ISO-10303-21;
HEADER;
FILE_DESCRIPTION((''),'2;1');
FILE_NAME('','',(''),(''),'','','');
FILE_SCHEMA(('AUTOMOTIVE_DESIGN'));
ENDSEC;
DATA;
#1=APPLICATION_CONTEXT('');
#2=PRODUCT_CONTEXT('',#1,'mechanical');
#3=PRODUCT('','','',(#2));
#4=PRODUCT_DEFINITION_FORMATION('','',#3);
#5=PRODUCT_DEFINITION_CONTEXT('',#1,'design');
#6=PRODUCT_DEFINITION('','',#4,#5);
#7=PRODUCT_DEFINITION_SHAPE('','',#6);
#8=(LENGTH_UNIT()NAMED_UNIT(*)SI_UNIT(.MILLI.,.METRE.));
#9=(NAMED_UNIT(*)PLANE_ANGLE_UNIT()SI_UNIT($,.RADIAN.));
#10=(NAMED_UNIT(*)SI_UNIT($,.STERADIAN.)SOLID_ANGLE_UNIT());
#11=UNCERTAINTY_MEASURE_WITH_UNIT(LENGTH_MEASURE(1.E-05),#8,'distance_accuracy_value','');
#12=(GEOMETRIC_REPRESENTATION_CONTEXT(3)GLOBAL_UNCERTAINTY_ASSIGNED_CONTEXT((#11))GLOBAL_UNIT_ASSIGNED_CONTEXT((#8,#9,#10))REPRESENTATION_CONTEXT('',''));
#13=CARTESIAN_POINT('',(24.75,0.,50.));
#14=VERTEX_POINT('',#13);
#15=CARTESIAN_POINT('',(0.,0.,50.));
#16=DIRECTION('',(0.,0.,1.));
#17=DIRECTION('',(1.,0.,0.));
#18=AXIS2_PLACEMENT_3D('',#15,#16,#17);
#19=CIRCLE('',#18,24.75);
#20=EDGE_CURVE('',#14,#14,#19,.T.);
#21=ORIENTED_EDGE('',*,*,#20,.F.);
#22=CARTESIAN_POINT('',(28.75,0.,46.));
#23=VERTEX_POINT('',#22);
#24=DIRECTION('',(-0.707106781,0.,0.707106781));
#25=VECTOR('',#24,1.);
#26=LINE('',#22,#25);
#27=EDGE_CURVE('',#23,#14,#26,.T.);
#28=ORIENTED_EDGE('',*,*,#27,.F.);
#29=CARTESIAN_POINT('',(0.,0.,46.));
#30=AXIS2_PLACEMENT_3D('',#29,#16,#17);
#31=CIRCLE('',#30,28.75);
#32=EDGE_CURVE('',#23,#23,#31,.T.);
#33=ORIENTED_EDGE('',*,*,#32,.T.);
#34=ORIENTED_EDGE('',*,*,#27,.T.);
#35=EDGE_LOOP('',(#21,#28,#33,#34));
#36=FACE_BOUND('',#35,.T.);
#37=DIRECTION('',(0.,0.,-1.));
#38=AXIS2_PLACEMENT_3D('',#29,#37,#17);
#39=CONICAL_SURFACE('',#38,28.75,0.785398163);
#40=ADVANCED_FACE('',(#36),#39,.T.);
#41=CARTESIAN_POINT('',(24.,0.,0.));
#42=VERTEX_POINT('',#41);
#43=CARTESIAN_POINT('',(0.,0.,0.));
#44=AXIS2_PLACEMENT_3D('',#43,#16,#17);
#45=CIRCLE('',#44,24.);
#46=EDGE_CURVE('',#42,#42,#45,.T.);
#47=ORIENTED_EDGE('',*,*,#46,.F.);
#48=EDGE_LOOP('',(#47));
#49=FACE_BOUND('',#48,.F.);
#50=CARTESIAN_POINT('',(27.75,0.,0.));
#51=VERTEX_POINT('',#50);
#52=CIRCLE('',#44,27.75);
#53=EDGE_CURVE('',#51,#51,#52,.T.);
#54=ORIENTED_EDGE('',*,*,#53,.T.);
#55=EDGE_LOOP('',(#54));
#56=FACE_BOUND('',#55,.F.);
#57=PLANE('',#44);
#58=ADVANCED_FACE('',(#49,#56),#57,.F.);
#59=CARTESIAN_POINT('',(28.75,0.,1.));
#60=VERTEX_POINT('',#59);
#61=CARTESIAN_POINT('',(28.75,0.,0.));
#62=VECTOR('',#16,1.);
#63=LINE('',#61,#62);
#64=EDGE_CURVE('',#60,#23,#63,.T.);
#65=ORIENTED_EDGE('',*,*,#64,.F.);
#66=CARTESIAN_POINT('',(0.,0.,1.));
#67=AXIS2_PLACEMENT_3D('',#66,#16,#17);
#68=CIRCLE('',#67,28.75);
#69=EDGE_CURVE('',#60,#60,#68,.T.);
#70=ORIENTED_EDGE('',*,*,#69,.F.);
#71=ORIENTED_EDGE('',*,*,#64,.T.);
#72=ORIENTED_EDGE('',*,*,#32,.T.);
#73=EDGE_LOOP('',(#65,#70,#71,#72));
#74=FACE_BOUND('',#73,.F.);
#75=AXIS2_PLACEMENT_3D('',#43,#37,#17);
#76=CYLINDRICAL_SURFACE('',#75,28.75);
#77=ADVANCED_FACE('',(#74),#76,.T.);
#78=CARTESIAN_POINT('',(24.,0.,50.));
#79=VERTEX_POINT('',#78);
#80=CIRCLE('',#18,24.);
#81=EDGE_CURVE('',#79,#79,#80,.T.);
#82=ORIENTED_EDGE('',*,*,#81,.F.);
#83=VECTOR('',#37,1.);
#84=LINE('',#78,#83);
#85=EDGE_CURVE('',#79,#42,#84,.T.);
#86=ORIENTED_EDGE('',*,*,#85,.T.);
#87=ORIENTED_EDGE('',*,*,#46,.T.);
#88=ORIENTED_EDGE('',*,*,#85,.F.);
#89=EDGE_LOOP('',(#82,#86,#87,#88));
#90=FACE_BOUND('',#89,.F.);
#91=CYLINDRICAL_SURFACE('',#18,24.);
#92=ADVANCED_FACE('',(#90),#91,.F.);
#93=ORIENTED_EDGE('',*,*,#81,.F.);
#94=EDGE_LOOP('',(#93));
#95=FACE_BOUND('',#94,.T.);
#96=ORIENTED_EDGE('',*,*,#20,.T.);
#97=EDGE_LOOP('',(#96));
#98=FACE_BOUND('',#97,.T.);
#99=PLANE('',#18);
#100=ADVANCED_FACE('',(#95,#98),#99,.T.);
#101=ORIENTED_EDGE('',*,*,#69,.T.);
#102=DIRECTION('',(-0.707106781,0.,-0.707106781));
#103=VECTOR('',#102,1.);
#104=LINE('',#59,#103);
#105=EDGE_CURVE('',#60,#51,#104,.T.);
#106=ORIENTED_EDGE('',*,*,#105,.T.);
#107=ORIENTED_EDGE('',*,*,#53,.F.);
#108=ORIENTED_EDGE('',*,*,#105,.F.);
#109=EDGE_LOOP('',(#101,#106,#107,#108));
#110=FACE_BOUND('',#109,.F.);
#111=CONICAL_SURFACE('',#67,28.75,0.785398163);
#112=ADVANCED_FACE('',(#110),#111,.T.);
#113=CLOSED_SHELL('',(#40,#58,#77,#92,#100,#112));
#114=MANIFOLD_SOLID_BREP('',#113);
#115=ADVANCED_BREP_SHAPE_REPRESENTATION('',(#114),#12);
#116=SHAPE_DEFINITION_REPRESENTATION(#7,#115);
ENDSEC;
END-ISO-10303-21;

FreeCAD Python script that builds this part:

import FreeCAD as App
import Part
import Sketcher
Q = App.Units.Quantity


def edges_at(feature, points):
    """Names of the edges that pass closest to the given points."""
    edges = feature.Shape.Edges
    near = lambda p: min(range(len(edges)), key=lambda i: edges[i].distToShape(Part.Vertex(*p))[0])
    return sorted({f"Edge{near(p) + 1}" for p in points})

doc = App.newDocument("Part")
body = doc.addObject("PartDesign::Body", "Body")

sketch1 = doc.addObject("Sketcher::SketchObject", "Sketch")
body.addObject(sketch1)
sketch1.AttachmentSupport = (doc.XY_Plane, [""])
sketch1.MapMode = "FlatFace"
sketch1.addGeometry(Part.Circle(App.Vector(0, 0, 0), App.Vector(0, 0, 1), 29), False)
sketch1.addConstraint([
    Sketcher.Constraint("Coincident", 0, 3, -1, 1),
    Sketcher.Constraint("Diameter", 0, Q("57.5 mm")),
])
pad1 = doc.addObject("PartDesign::Pad", "Pad")
body.addObject(pad1)
pad1.Profile = sketch1
pad1.Length = 50

sketch2 = doc.addObject("Sketcher::SketchObject", "Sketch001")
body.addObject(sketch2)
sketch2.AttachmentSupport = (doc.XY_Plane, [""])
sketch2.MapMode = "FlatFace"
sketch2.AttachmentOffset = App.Placement(App.Vector(0, 0, 50), App.Rotation())
sketch2.addGeometry(Part.Circle(App.Vector(0, 0, 0), App.Vector(0, 0, 1), 24), False)
sketch2.addConstraint([
    Sketcher.Constraint("Coincident", 0, 3, -1, 1),
    Sketcher.Constraint("Diameter", 0, Q("48 mm")),
])
pocket1 = doc.addObject("PartDesign::Pocket", "Pocket")
body.addObject(pocket1)
pocket1.Profile = sketch2
pocket1.Length = 50
doc.recompute()

chamfer = doc.addObject("PartDesign::Chamfer", "Chamfer")
body.addObject(chamfer)
chamfer.Base = (pocket1, edges_at(pocket1, [(-28.75, 0, 50)]))
chamfer.Size = 4
doc.recompute()

chamfer2 = doc.addObject("PartDesign::Chamfer", "Chamfer001")
body.addObject(chamfer2)
chamfer2.Base = (chamfer, edges_at(chamfer, [(-28.75, 0, 0)]))
chamfer2.Size = 1

doc.recompute()
